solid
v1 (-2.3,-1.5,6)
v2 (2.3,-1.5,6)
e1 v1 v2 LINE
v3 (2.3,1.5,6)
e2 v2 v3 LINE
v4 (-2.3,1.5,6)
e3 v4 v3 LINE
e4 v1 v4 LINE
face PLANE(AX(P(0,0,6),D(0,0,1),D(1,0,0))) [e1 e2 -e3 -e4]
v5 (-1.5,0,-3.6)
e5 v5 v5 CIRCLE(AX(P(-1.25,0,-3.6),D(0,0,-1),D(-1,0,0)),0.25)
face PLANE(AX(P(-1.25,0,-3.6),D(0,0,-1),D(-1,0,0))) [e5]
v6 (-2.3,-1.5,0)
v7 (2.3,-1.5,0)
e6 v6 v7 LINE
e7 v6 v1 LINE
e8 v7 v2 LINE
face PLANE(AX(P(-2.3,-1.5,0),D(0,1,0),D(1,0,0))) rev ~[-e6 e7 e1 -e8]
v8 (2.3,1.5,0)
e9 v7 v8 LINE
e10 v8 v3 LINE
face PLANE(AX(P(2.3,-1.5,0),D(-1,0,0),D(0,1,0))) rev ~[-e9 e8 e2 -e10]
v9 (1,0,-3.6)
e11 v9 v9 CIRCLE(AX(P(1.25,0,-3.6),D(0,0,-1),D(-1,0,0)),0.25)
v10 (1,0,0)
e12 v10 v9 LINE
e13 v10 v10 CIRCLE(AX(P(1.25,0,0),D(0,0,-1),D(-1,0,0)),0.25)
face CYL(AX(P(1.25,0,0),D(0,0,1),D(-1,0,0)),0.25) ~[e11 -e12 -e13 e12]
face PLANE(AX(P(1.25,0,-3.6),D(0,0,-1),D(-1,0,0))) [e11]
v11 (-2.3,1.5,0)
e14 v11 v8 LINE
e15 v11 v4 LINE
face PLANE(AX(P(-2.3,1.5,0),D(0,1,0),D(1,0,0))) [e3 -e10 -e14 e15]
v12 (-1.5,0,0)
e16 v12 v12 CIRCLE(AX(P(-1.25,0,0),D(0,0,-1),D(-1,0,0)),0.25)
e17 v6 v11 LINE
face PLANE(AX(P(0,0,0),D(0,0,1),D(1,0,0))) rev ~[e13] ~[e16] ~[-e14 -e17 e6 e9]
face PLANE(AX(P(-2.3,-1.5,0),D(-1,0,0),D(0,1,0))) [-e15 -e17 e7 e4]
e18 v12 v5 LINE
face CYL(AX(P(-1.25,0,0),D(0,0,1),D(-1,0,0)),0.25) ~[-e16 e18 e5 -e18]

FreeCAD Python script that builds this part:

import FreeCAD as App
import Part
import Sketcher
from FreeCAD import Vector

doc = App.newDocument("Part")
params = doc.addObject("Spreadsheet::Sheet", "Params")
for row, (alias, value) in enumerate([
    ("sketch1_height", "3 mm"),
    ("sketch1_width", "4.6 mm"),
    ("pad1_length", "6 mm"),
    ("sketch2_diameter", "0.5 mm"),
    ("pad2_length", "3.6 mm"),
], start=1):
    params.set(f"A{row}", alias)
    params.set(f"B{row}", "=" + value)
    params.setAlias(f"B{row}", alias)

body = doc.addObject("PartDesign::Body", "Body")

# Sketch on XY plane
sketch1 = body.newObject("Sketcher::SketchObject", "Sketch")
sketch1.AttachmentSupport = (doc.getObject("XY_Plane"), [""])
sketch1.MapMode = "FlatFace"
sketch1.addGeometry([
    Part.LineSegment(Vector(-2.3, 1.5, 0), Vector(-2.3, -1.5, 0)),
    Part.LineSegment(Vector(-2.3, -1.5, 0), Vector(2.3, -1.5, 0)),
    Part.LineSegment(Vector(2.3, -1.5, 0), Vector(2.3, 1.5, 0)),
    Part.LineSegment(Vector(2.3, 1.5, 0), Vector(-2.3, 1.5, 0)),
], False)
sketch1.addConstraint([
    Sketcher.Constraint("Coincident", 0, 2, 1, 1),
    Sketcher.Constraint("Coincident", 1, 2, 2, 1),
    Sketcher.Constraint("Coincident", 2, 2, 3, 1),
    Sketcher.Constraint("Coincident", 3, 2, 0, 1),
    Sketcher.Constraint("Vertical", 0),
    Sketcher.Constraint("Horizontal", 1),
    Sketcher.Constraint("Vertical", 2),
    Sketcher.Constraint("Horizontal", 3),
    Sketcher.Constraint("Symmetric", 0, 2, 2, 2, -1, 1),
    Sketcher.Constraint("DistanceY", 0, 2, 0, 1, 3.0),
    Sketcher.Constraint("DistanceX", 1, 1, 1, 2, 4.6),
])
sketch1.setExpression("Constraints[9]", "Params.sketch1_height")
sketch1.setExpression("Constraints[10]", "Params.sketch1_width")
pad1 = body.newObject("PartDesign::Pad", "Pad")
pad1.Profile = sketch1
pad1.setExpression("Length", "Params.pad1_length")

# Sketch on XY plane
sketch2 = body.newObject("Sketcher::SketchObject", "Sketch001")
sketch2.AttachmentSupport = (doc.getObject("XY_Plane"), [""])
sketch2.MapMode = "FlatFace"
sketch2.addGeometry([
    Part.Circle(Vector(1.25, 0, 0), Vector(0, 0, 1), 0.25),
    Part.Circle(Vector(-1.25, 0, 0), Vector(0, 0, 1), 0.25),
], False)
sketch2.addConstraint([
    Sketcher.Constraint("Equal", 0, 1),
    Sketcher.Constraint("Symmetric", 0, 3, 1, 3, -1, 1),
    Sketcher.Constraint("PointOnObject", 0, 3, -1),
    Sketcher.Constraint("Diameter", 0, 0.5),
    Sketcher.Constraint("DistanceX", 1, 3, 0, 3, 2.5),
])
sketch2.setExpression("Constraints[3]", "Params.sketch2_diameter")
pad2 = body.newObject("PartDesign::Pad", "Pad001")
pad2.Profile = sketch2
pad2.setExpression("Length", "Params.pad2_length")
pad2.Reversed = True

doc.recompute()
